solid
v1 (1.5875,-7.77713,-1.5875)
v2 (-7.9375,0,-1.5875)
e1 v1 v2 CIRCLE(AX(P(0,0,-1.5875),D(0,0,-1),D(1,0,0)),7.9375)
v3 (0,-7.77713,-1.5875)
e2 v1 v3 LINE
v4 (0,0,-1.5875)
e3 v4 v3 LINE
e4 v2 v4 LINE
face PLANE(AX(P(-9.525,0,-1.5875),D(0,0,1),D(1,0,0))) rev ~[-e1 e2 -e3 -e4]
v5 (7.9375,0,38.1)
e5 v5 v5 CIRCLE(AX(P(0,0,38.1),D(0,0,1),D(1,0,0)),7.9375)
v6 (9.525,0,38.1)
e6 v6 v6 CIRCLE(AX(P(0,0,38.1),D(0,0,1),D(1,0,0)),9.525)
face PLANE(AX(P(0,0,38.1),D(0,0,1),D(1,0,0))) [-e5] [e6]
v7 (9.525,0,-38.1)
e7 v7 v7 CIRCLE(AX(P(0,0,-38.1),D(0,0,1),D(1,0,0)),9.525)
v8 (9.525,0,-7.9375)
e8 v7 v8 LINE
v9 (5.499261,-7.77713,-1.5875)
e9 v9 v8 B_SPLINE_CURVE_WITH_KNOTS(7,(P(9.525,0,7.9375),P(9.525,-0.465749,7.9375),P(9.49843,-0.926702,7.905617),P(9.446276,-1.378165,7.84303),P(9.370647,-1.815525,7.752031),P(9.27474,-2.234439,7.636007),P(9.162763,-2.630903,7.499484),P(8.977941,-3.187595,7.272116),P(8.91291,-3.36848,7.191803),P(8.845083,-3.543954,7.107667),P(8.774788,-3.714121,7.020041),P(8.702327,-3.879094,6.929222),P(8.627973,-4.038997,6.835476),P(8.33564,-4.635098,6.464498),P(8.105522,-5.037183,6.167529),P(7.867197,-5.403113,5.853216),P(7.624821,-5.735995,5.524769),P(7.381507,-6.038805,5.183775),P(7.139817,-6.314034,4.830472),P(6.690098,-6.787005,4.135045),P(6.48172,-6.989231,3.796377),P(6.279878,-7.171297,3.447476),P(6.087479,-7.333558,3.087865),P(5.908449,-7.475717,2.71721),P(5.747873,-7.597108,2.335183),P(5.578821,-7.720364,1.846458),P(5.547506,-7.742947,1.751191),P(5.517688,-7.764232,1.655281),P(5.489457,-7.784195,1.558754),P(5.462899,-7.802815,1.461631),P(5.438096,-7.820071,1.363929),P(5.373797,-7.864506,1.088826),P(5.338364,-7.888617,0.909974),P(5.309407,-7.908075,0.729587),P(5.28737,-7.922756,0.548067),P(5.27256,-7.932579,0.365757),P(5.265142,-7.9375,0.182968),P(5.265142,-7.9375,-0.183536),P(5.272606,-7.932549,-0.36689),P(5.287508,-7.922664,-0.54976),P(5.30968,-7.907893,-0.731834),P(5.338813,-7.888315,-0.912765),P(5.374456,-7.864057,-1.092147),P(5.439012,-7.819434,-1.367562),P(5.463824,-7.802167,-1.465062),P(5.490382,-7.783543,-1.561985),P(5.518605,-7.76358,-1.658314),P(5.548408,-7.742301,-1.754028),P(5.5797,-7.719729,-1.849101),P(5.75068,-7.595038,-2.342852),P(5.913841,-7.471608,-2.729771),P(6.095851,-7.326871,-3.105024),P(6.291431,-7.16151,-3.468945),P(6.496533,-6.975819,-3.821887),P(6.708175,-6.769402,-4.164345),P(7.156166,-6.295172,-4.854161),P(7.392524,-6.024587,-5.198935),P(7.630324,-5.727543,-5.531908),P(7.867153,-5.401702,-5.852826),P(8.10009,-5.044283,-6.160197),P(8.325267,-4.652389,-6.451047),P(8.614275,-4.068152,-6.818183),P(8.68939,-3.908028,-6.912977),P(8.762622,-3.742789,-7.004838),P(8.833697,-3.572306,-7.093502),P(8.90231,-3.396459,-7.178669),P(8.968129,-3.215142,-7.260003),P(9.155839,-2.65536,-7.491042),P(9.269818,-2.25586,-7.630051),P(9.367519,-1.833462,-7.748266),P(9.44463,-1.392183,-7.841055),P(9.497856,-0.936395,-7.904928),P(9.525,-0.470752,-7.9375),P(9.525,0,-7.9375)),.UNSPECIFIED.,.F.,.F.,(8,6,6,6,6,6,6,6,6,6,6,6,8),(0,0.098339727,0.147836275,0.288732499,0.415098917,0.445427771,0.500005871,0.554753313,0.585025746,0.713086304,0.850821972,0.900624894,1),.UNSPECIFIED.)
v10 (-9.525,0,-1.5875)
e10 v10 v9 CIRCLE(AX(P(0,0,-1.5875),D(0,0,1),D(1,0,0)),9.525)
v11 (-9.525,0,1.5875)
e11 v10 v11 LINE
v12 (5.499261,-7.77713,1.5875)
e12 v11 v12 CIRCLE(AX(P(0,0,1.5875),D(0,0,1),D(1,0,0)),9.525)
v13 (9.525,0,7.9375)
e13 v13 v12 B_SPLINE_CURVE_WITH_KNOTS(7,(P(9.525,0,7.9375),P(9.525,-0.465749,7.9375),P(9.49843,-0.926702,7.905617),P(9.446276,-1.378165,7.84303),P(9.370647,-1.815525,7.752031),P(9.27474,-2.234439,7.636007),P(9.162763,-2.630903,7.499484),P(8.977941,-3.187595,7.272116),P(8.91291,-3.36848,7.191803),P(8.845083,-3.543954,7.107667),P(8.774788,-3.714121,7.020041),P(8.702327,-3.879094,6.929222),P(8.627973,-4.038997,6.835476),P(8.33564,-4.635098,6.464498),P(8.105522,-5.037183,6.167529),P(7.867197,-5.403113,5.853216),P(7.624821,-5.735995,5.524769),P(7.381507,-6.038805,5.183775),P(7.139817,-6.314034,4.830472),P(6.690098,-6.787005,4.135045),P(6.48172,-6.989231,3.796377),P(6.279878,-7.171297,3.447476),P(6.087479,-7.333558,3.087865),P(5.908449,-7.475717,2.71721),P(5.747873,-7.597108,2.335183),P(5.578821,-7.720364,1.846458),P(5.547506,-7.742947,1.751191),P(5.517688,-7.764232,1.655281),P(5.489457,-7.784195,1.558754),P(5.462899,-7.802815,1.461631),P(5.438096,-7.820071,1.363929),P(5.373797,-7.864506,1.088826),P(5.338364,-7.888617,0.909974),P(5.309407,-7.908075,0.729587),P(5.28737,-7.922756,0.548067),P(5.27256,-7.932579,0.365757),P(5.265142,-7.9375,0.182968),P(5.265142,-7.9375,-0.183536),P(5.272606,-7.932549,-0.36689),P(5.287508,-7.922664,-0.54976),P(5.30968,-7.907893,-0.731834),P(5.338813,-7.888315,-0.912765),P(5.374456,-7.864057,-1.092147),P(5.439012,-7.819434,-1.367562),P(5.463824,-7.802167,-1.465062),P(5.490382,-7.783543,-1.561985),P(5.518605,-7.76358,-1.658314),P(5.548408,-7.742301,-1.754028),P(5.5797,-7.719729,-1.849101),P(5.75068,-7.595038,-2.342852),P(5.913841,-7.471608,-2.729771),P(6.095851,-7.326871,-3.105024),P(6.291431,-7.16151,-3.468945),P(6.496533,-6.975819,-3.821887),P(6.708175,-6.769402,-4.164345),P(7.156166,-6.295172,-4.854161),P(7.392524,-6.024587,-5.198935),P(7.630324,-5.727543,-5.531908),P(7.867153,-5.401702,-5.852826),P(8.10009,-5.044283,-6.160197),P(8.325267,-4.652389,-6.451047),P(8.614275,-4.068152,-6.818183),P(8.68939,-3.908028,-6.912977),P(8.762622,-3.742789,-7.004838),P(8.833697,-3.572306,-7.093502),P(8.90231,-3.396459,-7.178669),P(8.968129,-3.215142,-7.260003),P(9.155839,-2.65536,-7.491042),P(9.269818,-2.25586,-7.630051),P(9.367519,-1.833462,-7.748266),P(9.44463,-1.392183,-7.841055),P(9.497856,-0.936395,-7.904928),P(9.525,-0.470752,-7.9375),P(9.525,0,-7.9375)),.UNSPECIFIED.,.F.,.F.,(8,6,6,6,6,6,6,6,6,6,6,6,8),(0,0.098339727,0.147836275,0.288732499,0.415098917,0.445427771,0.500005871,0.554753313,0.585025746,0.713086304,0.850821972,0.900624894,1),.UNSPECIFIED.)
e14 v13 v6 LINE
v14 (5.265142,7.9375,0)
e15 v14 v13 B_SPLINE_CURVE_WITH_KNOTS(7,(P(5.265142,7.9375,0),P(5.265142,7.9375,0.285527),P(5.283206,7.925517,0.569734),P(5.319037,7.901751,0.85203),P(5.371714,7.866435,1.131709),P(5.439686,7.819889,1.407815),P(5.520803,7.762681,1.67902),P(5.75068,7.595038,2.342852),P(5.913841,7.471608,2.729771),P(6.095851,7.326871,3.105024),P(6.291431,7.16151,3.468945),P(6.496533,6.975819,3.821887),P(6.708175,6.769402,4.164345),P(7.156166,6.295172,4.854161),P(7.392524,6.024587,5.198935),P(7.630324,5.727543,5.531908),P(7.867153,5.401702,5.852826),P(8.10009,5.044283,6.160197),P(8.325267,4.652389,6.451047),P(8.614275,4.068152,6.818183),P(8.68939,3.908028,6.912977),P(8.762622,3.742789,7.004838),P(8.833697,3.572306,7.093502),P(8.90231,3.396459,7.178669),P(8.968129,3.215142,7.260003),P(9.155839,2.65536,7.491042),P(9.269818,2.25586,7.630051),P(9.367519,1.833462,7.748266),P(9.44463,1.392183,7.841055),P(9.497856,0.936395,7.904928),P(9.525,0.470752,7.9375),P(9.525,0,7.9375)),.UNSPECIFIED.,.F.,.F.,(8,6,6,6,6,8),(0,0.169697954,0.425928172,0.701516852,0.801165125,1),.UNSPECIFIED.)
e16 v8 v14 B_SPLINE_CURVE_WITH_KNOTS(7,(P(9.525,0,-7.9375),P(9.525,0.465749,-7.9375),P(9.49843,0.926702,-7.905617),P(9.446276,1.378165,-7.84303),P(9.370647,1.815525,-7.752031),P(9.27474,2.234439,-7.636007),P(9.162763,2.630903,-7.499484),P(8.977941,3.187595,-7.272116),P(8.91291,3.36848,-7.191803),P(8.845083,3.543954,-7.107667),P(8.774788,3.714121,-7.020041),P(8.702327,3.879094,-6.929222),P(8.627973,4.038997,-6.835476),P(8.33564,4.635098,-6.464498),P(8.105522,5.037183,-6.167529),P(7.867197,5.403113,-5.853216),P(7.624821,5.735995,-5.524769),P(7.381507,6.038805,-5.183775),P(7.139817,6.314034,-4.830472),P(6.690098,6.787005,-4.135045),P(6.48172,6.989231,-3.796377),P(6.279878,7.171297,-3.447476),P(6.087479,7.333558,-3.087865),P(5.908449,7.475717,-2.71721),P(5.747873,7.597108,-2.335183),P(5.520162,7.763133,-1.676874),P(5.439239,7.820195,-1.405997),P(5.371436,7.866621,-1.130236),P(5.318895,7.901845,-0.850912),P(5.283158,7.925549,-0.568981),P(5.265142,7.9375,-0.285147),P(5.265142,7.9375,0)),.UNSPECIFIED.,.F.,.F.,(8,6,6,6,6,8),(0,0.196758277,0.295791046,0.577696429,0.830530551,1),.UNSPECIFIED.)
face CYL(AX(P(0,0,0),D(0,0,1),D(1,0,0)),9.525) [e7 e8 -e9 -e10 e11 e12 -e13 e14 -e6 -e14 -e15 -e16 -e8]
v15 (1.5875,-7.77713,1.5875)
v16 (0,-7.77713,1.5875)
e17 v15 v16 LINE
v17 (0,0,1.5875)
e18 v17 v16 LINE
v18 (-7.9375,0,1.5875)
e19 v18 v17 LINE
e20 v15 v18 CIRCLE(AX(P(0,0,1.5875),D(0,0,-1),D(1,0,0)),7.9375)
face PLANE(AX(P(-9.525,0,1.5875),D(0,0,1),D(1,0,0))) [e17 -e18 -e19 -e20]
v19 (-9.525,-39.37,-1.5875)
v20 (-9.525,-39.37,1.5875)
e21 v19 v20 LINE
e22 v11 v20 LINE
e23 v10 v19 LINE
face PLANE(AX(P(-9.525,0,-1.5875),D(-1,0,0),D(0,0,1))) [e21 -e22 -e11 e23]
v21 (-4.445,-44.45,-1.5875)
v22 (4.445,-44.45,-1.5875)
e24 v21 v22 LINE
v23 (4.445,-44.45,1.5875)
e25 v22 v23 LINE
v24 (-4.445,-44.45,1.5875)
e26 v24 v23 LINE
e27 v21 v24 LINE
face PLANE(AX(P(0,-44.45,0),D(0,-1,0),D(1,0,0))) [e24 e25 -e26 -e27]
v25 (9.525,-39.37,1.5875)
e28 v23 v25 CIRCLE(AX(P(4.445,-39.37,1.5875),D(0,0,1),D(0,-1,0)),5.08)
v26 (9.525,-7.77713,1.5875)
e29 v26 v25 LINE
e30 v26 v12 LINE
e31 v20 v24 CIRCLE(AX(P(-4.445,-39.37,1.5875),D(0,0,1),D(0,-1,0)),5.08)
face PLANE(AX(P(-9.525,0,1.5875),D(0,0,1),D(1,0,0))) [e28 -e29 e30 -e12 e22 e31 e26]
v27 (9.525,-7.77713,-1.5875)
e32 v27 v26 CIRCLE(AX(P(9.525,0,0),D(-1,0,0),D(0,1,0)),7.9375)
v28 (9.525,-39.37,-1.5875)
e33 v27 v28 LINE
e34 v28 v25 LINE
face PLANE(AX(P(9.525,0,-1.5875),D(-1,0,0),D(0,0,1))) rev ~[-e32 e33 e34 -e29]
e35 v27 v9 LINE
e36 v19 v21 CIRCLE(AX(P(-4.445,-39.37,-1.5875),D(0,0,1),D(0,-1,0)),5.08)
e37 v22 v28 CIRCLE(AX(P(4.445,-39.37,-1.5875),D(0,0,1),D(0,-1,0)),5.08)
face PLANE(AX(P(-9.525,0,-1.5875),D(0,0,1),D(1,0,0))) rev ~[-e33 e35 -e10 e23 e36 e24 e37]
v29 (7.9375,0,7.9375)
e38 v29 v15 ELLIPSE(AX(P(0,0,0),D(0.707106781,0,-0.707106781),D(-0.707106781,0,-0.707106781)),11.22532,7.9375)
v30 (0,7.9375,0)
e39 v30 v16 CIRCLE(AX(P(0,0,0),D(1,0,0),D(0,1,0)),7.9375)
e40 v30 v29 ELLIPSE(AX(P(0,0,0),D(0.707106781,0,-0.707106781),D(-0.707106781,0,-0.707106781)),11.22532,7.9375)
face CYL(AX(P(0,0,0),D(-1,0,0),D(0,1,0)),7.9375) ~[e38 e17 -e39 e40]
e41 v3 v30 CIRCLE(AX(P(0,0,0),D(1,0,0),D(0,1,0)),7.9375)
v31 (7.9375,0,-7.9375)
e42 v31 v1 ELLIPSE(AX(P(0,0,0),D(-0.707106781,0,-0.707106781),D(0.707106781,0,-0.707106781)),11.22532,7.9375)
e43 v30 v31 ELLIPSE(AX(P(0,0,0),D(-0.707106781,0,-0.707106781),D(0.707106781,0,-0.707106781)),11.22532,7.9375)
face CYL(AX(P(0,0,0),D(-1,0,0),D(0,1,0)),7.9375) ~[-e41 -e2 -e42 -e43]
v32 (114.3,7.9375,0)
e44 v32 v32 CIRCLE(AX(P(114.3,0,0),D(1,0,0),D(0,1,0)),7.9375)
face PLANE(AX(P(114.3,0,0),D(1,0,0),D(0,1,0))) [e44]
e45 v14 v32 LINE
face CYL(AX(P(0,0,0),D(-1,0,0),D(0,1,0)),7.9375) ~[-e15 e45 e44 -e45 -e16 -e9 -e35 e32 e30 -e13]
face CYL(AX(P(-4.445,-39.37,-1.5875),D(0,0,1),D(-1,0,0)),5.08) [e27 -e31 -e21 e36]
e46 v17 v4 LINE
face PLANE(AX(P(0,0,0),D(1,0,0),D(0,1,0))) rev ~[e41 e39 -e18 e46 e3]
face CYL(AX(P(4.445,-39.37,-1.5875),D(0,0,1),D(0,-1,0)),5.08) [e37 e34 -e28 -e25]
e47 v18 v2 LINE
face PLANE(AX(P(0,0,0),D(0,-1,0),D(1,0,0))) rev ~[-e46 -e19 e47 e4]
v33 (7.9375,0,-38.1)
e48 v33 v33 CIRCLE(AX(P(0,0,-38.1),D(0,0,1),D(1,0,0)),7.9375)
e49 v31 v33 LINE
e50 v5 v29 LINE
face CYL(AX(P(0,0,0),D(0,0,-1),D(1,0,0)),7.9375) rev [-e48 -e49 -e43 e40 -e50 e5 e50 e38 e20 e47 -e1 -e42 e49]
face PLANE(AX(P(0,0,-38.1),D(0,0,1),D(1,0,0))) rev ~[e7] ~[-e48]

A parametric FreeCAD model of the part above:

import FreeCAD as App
import Part
import Sketcher
Q = App.Units.Quantity


def edges_at(feature, points):
    """Names of the edges that pass closest to the given points."""
    edges = feature.Shape.Edges
    near = lambda p: min(range(len(edges)), key=lambda i: edges[i].distToShape(Part.Vertex(*p))[0])
    return sorted({f"Edge{near(p) + 1}" for p in points})

doc = App.newDocument("Part")
body = doc.addObject("PartDesign::Body", "Body")

# Sketch on XY plane
sketch1 = doc.addObject("Sketcher::SketchObject", "Sketch")
body.addObject(sketch1)
sketch1.AttachmentSupport = (doc.XY_Plane, [""])
sketch1.MapMode = "FlatFace"
sketch1.addGeometry([
    Part.Circle(App.Vector(0, 0, 0), App.Vector(0, 0, 1), 10),
    Part.Circle(App.Vector(0, 0, 0), App.Vector(0, 0, 1), 8),
], False)
sketch1.addConstraint([
    Sketcher.Constraint("Coincident", 0, 3, -1, 1),
    Sketcher.Constraint("Coincident", 1, 3, -1, 1),
    Sketcher.Constraint("Diameter", 0, Q("0.75 in")),
    Sketcher.Constraint("Diameter", 1, Q("0.625 in")),
])
pad1 = doc.addObject("PartDesign::Pad", "Pad")
body.addObject(pad1)
pad1.Profile = sketch1
pad1.Length = Q("3 in")
pad1.Midplane = True

# Sketch on YZ plane
sketch2 = doc.addObject("Sketcher::SketchObject", "Sketch001")
body.addObject(sketch2)
sketch2.AttachmentSupport = (doc.YZ_Plane, [""])
sketch2.MapMode = "FlatFace"
sketch2.addGeometry(Part.Circle(App.Vector(0, 0, 0), App.Vector(0, 0, 1), 8), False)
sketch2.addConstraint([
    Sketcher.Constraint("Coincident", 0, 3, -1, 1),
    Sketcher.Constraint("Diameter", 0, Q("0.625 in")),
])
pad2 = doc.addObject("PartDesign::Pad", "Pad001")
body.addObject(pad2)
pad2.Profile = sketch2
pad2.Length = Q("4.5 in")

# Sketch on XZ plane
sketch3 = doc.addObject("Sketcher::SketchObject", "Sketch002")
body.addObject(sketch3)
sketch3.AttachmentSupport = (doc.XZ_Plane, [""])
sketch3.MapMode = "FlatFace"
sketch3.addGeometry([
    Part.LineSegment(App.Vector(-9.5, 1.6, 0), App.Vector(-9.5, -1.6, 0)),
    Part.LineSegment(App.Vector(-9.5, -1.6, 0), App.Vector(9.5, -1.6, 0)),
    Part.LineSegment(App.Vector(9.5, -1.6, 0), App.Vector(9.5, 1.6, 0)),
    Part.LineSegment(App.Vector(9.5, 1.6, 0), App.Vector(-9.5, 1.6, 0)),
], False)
sketch3.addConstraint([
    Sketcher.Constraint("Coincident", 0, 2, 1, 1),
    Sketcher.Constraint("Coincident", 1, 2, 2, 1),
    Sketcher.Constraint("Coincident", 2, 2, 3, 1),
    Sketcher.Constraint("Coincident", 3, 2, 0, 1),
    Sketcher.Constraint("Vertical", 0),
    Sketcher.Constraint("Horizontal", 1),
    Sketcher.Constraint("Vertical", 2),
    Sketcher.Constraint("Horizontal", 3),
    Sketcher.Constraint("Symmetric", 0, 2, 2, 2, -1, 1),
    Sketcher.Constraint("DistanceX", 1, 1, 1, 2, Q("0.75 in")),
    Sketcher.Constraint("DistanceY", 0, 2, 0, 1, Q("0.125 in")),
])
pad3 = doc.addObject("PartDesign::Pad", "Pad002")
body.addObject(pad3)
pad3.Profile = sketch3
pad3.Length = Q("1.75 in")
doc.recompute()

fillet = doc.addObject("PartDesign::Fillet", "Fillet")
body.addObject(fillet)
fillet.Base = (pad3, edges_at(pad3, [(-9.525, -44.45, 0), (9.525, -44.45, 0)]))
fillet.Radius = Q("0.2 in")

doc.recompute()
